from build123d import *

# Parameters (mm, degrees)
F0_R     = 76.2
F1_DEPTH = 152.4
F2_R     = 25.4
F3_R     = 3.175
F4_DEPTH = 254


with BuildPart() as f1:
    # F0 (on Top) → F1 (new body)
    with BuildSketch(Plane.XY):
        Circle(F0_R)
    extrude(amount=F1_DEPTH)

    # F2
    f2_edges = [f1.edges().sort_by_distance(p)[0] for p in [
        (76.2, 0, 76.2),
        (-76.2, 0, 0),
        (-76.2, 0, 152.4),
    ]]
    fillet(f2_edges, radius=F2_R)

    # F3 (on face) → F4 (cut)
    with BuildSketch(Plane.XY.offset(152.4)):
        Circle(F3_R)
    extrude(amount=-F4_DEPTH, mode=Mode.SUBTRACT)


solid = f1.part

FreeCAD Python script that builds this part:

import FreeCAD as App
import Part
import Sketcher
from FreeCAD import Vector
Q = App.Units.Quantity

doc = App.newDocument("Part")
body = doc.addObject("PartDesign::Body", "Body")

# Sketch on XY plane
sketch1 = doc.addObject("Sketcher::SketchObject", "Sketch")
body.addObject(sketch1)
sketch1.AttachmentSupport = (doc.XY_Plane, [""])
sketch1.MapMode = "FlatFace"
sketch1.addGeometry(Part.Circle(Vector(0, 0, 0), Vector(0, 0, 1), 76.2), False)
sketch1.addConstraint([
    Sketcher.Constraint("Coincident", 0, 3, -1, 1),
    Sketcher.Constraint("Diameter", 0, Q("6 in")),
])
pad1 = doc.addObject("PartDesign::Pad", "Pad")
body.addObject(pad1)
pad1.Profile = sketch1
pad1.Length = Q("6 in")
doc.recompute()

fillet = doc.addObject("PartDesign::Fillet", "Fillet")
body.addObject(fillet)
fillet.Base = (pad1, ["Edge1"])
fillet.UseAllEdges = True
fillet.Radius = Q("1 in")

# Sketch on XY plane
sketch2 = doc.addObject("Sketcher::SketchObject", "Sketch001")
body.addObject(sketch2)
sketch2.AttachmentSupport = (doc.XY_Plane, [""])
sketch2.MapMode = "FlatFace"
sketch2.AttachmentOffset = App.Placement(Vector(0, 0, 6 * 25.4), App.Rotation())
sketch2.addGeometry(Part.Circle(Vector(0, 0, 0), Vector(0, 0, 1), 3.175), False)
sketch2.addConstraint([
    Sketcher.Constraint("Coincident", 0, 3, -1, 1),
    Sketcher.Constraint("Diameter", 0, Q("0.25 in")),
])
pocket1 = doc.addObject("PartDesign::Pocket", "Pocket")
body.addObject(pocket1)
pocket1.Profile = sketch2
pocket1.Length = Q("10 in")

doc.recompute()
